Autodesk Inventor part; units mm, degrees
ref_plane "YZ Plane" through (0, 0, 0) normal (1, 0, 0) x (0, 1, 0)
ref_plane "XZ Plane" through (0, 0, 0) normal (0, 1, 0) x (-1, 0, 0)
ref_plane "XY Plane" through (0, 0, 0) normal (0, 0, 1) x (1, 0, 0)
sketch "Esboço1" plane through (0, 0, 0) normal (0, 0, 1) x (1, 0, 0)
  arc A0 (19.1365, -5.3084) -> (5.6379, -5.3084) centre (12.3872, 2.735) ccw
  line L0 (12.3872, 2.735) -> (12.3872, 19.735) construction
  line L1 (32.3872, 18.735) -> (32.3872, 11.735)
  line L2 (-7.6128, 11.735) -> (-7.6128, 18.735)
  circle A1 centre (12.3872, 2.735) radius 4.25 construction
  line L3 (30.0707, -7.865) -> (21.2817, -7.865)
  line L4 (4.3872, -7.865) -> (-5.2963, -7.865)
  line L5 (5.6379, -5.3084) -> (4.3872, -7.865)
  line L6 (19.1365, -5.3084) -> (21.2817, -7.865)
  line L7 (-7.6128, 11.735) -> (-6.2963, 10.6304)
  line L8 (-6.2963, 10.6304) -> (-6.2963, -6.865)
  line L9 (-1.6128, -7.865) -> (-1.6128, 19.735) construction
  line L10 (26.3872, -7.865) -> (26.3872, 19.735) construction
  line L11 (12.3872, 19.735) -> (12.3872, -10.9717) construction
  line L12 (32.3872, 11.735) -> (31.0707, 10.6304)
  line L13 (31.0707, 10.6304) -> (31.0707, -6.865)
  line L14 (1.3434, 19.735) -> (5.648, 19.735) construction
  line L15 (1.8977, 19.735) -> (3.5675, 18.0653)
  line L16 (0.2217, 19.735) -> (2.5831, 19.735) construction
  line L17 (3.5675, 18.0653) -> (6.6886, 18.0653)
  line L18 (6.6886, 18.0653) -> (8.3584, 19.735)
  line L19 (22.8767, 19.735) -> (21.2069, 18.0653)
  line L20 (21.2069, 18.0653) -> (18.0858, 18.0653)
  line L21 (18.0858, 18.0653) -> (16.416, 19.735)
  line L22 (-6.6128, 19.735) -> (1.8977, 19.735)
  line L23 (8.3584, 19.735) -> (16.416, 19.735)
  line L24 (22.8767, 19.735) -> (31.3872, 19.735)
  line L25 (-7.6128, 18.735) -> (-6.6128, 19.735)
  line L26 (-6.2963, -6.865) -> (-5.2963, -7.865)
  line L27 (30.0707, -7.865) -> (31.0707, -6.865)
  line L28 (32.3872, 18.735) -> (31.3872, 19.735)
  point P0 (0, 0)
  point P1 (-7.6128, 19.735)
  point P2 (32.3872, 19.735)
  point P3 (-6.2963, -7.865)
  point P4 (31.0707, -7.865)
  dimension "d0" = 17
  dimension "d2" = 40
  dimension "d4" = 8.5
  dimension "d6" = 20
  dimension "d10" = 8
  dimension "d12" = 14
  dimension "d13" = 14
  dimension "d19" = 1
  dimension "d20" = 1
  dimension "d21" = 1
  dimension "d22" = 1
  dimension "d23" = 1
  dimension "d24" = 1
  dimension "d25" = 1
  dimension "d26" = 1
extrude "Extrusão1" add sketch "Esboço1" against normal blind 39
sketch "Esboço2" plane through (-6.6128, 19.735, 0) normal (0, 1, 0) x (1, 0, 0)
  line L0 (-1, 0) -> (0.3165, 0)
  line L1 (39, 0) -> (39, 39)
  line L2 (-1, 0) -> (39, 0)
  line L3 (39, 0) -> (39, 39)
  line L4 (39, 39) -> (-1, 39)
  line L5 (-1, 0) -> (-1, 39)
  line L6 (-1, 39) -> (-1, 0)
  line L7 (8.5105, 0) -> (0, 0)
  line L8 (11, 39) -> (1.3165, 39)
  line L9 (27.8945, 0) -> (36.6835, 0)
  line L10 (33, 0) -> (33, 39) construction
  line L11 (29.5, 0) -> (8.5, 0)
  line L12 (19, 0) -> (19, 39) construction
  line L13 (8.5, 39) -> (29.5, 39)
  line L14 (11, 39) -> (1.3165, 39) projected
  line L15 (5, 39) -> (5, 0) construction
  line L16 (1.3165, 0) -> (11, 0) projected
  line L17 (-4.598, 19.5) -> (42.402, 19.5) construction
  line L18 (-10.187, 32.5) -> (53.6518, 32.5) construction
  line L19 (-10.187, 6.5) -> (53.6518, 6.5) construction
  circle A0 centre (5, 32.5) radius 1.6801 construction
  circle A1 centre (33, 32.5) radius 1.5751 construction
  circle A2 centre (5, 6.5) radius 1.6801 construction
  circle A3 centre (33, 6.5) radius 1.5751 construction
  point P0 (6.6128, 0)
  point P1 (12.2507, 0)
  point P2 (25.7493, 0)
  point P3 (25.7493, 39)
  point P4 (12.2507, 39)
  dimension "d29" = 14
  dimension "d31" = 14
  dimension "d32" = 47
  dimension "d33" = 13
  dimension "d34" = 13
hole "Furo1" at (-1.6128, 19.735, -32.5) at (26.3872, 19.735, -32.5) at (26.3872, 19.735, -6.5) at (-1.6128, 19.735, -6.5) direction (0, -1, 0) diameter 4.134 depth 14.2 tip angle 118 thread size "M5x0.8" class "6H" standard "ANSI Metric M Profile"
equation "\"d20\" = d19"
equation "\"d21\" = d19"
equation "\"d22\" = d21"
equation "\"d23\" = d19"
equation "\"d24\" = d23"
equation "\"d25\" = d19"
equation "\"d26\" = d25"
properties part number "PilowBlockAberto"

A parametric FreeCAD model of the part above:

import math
import FreeCAD as App
import Part
import Sketcher
Q = App.Units.Quantity

doc = App.newDocument("Part")
body = doc.addObject("PartDesign::Body", "Body")

# Sketch on XY plane
sketch1 = body.newObject("Sketcher::SketchObject", "Sketch")
sketch1.AttachmentSupport = (doc.getObject("XY_Plane"), [""])
sketch1.MapMode = "FlatFace"
sketch1.addGeometry([
    Part.ArcOfCircle(Part.Circle(App.Vector(12.4, 2.7, 0), App.Vector(0, 0, 1), 10.5), math.radians(-50), math.radians(230)),  # 0
    Part.LineSegment(App.Vector(19.1, -5.3, 0), App.Vector(21.3, -7.9, 0)),  # 1
    Part.LineSegment(App.Vector(21.3, -7.9, 0), App.Vector(30.1, -7.9, 0)),  # 2
    Part.LineSegment(App.Vector(30.1, -7.9, 0), App.Vector(31.1, -6.9, 0)),  # 3
    Part.LineSegment(App.Vector(31.1, -6.9, 0), App.Vector(31.1, 10.6, 0)),  # 4
    Part.LineSegment(App.Vector(31.1, 10.6, 0), App.Vector(32.4, 11.7, 0)),  # 5
    Part.LineSegment(App.Vector(32.4, 11.7, 0), App.Vector(32.4, 18.7, 0)),  # 6
    Part.LineSegment(App.Vector(32.4, 18.7, 0), App.Vector(31.4, 19.7, 0)),  # 7
    Part.LineSegment(App.Vector(31.4, 19.7, 0), App.Vector(22.9, 19.7, 0)),  # 8
    Part.LineSegment(App.Vector(22.9, 19.7, 0), App.Vector(21.2, 18.1, 0)),  # 9
    Part.LineSegment(App.Vector(21.2, 18.1, 0), App.Vector(18.1, 18.1, 0)),  # 10
    Part.LineSegment(App.Vector(18.1, 18.1, 0), App.Vector(16.4, 19.7, 0)),  # 11
    Part.LineSegment(App.Vector(16.4, 19.7, 0), App.Vector(8.4, 19.7, 0)),  # 12
    Part.LineSegment(App.Vector(8.4, 19.7, 0), App.Vector(6.7, 18.1, 0)),  # 13
    Part.LineSegment(App.Vector(6.7, 18.1, 0), App.Vector(3.6, 18.1, 0)),  # 14
    Part.LineSegment(App.Vector(3.6, 18.1, 0), App.Vector(1.9, 19.7, 0)),  # 15
    Part.LineSegment(App.Vector(1.9, 19.7, 0), App.Vector(-6.6, 19.7, 0)),  # 16
    Part.LineSegment(App.Vector(-6.6, 19.7, 0), App.Vector(-7.6, 18.7, 0)),  # 17
    Part.LineSegment(App.Vector(-7.6, 18.7, 0), App.Vector(-7.6, 11.7, 0)),  # 18
    Part.LineSegment(App.Vector(-7.6, 11.7, 0), App.Vector(-6.3, 10.6, 0)),  # 19
    Part.LineSegment(App.Vector(-6.3, 10.6, 0), App.Vector(-6.3, -6.9, 0)),  # 20
    Part.LineSegment(App.Vector(-6.3, -6.9, 0), App.Vector(-5.3, -7.9, 0)),  # 21
    Part.LineSegment(App.Vector(-5.3, -7.9, 0), App.Vector(4.4, -7.9, 0)),  # 22
    Part.LineSegment(App.Vector(4.4, -7.9, 0), App.Vector(5.6, -5.3, 0)),  # 23
], False)
sketch1.addConstraint([
    Sketcher.Constraint("Coincident", 0, 1, 1, 1),
    Sketcher.Constraint("Coincident", 1, 2, 2, 1),
    Sketcher.Constraint("Coincident", 2, 2, 3, 1),
    Sketcher.Constraint("Coincident", 3, 2, 4, 1),
    Sketcher.Constraint("Coincident", 4, 2, 5, 1),
    Sketcher.Constraint("Coincident", 5, 2, 6, 1),
    Sketcher.Constraint("Coincident", 6, 2, 7, 1),
    Sketcher.Constraint("Coincident", 7, 2, 8, 1),
    Sketcher.Constraint("Coincident", 8, 2, 9, 1),
    Sketcher.Constraint("Coincident", 9, 2, 10, 1),
    Sketcher.Constraint("Coincident", 10, 2, 11, 1),
    Sketcher.Constraint("Coincident", 11, 2, 12, 1),
    Sketcher.Constraint("Coincident", 12, 2, 13, 1),
    Sketcher.Constraint("Coincident", 13, 2, 14, 1),
    Sketcher.Constraint("Coincident", 14, 2, 15, 1),
    Sketcher.Constraint("Coincident", 15, 2, 16, 1),
    Sketcher.Constraint("Coincident", 16, 2, 17, 1),
    Sketcher.Constraint("Coincident", 17, 2, 18, 1),
    Sketcher.Constraint("Coincident", 18, 2, 19, 1),
    Sketcher.Constraint("Coincident", 19, 2, 20, 1),
    Sketcher.Constraint("Coincident", 20, 2, 21, 1),
    Sketcher.Constraint("Coincident", 21, 2, 22, 1),
    Sketcher.Constraint("Coincident", 22, 2, 23, 1),
    Sketcher.Constraint("Coincident", 23, 2, 0, 2),
    Sketcher.Constraint("Horizontal", 2),
    Sketcher.Constraint("Vertical", 4),
    Sketcher.Constraint("Vertical", 6),
    Sketcher.Constraint("Horizontal", 8),
    Sketcher.Constraint("Horizontal", 10),
    Sketcher.Constraint("Horizontal", 12),
    Sketcher.Constraint("Horizontal", 14),
    Sketcher.Constraint("Horizontal", 16),
    Sketcher.Constraint("Vertical", 18),
    Sketcher.Constraint("Vertical", 20),
    Sketcher.Constraint("Horizontal", 22),
    Sketcher.Constraint("Perpendicular", 1, 5),
    Sketcher.Constraint("Perpendicular", 3, 7),
    Sketcher.Constraint("Perpendicular", 7, 9),
    Sketcher.Constraint("Perpendicular", 9, 11),
    Sketcher.Constraint("Perpendicular", 11, 13),
    Sketcher.Constraint("Perpendicular", 13, 15),
    Sketcher.Constraint("Perpendicular", 15, 17),
    Sketcher.Constraint("Perpendicular", 17, 21),
    Sketcher.Constraint("Horizontal", 8, 2, 11, 2),
    Sketcher.Constraint("Horizontal", 10, 2, 13, 2),
    Sketcher.Constraint("Horizontal", 12, 2, 15, 2),
    Sketcher.Constraint("Horizontal", 6, 2, 17, 2),
    Sketcher.Constraint("Horizontal", 5, 2, 18, 2),
    Sketcher.Constraint("Horizontal", 4, 2, 19, 2),
    Sketcher.Constraint("Horizontal", 3, 2, 20, 2),
    Sketcher.Constraint("Horizontal", 2, 2, 21, 2),
    Sketcher.Constraint("Horizontal", 0, 1, 23, 2),
    Sketcher.Constraint("Equal", 10, 14),
    Sketcher.Constraint("Equal", 8, 16),
    Sketcher.Constraint("Equal", 3, 7),
    Sketcher.Constraint("Equal", 9, 11),
    Sketcher.Constraint("Equal", 5, 19),
    Sketcher.Constraint("DistanceX", 2, 2, 3, 2, 1.0),
    Sketcher.Constraint("DistanceX", 0, 3, 5, 2, 20.0),
    Sketcher.Constraint("DistanceY", 5, 2, 7, 2, 8.0),
    Sketcher.Constraint("DistanceY", 0, 3, 7, 2, 17.0),
    Sketcher.Constraint("DistanceX", 22, 2, 0, 3, 8.0),
    Sketcher.Constraint("Radius", 0, 10.5),
    Sketcher.Constraint("Angle", 1, Q("-50.0006 deg")),
    Sketcher.Constraint("DistanceY", 1, 2, 0, 3, 10.6),
    Sketcher.Constraint("DistanceX", 2, 1, 2, 2, 8.789),
    Sketcher.Constraint("DistanceX", 10, 2, 10, 1, 3.121),
    Sketcher.Constraint("DistanceX", 8, 2, 8, 1, 8.5105),
    Sketcher.Constraint("DistanceX", 12, 2, 12, 1, 8.0576),
    Sketcher.Constraint("DistanceX", 22, 1, 22, 2, 9.6835),
    Sketcher.Constraint("DistanceY", 4, 1, 4, 2, 17.4954),
    Sketcher.Constraint("DistanceY", -1, 1, 0, 3, 2.735),
    Sketcher.Constraint("DistanceX", -1, 1, 9, 2, 21.207),
])
pad1 = body.newObject("PartDesign::Pad", "Pad")
pad1.Profile = sketch1
pad1.Length = 39
pad1.Reversed = True

# Sketch on XZ plane
sketch2 = body.newObject("Sketcher::SketchObject", "Sketch001")
sketch2.AttachmentSupport = (doc.getObject("XZ_Plane"), [""])
sketch2.MapMode = "FlatFace"
sketch2.AttachmentOffset = App.Placement(App.Vector(0, 0, -19.735), App.Rotation())
sketch2.addGeometry([
    Part.Circle(App.Vector(-1.6, -32.5, 0), App.Vector(0, 0, 1), 2.1),
    Part.Circle(App.Vector(26.4, -32.5, 0), App.Vector(0, 0, 1), 2.1),
    Part.Circle(App.Vector(26.4, -6.5, 0), App.Vector(0, 0, 1), 2.1),
    Part.Circle(App.Vector(-1.6, -6.5, 0), App.Vector(0, 0, 1), 2.1),
], False)
sketch2.addConstraint([
    Sketcher.Constraint("Equal", 0, 1),
    Sketcher.Constraint("Equal", 1, 2),
    Sketcher.Constraint("Equal", 2, 3),
    Sketcher.Constraint("Horizontal", 0, 3, 1, 3),
    Sketcher.Constraint("Horizontal", 2, 3, 3, 3),
    Sketcher.Constraint("Vertical", 1, 3, 2, 3),
    Sketcher.Constraint("Vertical", 0, 3, 3, 3),
    Sketcher.Constraint("Diameter", 0, 4.134),
    Sketcher.Constraint("DistanceX", 0, 3, 1, 3, 28.0),
    Sketcher.Constraint("DistanceY", 1, 3, 2, 3, 26.0),
    Sketcher.Constraint("DistanceY", 0, 3, -1, 1, 32.5),
    Sketcher.Constraint("DistanceX", 0, 3, -1, 1, 1.6128),
])
doc.recompute()
hole = body.newObject("PartDesign::Hole", "Hole")
hole.Profile = sketch2
hole.ThreadType = "None"
hole.Diameter = 4.134
hole.DepthType = "Dimension"
hole.Depth = 14.2
hole.DrillPoint = "Angled"
hole.DrillPointAngle = 118
hole.Reversed = True

doc.recompute()
